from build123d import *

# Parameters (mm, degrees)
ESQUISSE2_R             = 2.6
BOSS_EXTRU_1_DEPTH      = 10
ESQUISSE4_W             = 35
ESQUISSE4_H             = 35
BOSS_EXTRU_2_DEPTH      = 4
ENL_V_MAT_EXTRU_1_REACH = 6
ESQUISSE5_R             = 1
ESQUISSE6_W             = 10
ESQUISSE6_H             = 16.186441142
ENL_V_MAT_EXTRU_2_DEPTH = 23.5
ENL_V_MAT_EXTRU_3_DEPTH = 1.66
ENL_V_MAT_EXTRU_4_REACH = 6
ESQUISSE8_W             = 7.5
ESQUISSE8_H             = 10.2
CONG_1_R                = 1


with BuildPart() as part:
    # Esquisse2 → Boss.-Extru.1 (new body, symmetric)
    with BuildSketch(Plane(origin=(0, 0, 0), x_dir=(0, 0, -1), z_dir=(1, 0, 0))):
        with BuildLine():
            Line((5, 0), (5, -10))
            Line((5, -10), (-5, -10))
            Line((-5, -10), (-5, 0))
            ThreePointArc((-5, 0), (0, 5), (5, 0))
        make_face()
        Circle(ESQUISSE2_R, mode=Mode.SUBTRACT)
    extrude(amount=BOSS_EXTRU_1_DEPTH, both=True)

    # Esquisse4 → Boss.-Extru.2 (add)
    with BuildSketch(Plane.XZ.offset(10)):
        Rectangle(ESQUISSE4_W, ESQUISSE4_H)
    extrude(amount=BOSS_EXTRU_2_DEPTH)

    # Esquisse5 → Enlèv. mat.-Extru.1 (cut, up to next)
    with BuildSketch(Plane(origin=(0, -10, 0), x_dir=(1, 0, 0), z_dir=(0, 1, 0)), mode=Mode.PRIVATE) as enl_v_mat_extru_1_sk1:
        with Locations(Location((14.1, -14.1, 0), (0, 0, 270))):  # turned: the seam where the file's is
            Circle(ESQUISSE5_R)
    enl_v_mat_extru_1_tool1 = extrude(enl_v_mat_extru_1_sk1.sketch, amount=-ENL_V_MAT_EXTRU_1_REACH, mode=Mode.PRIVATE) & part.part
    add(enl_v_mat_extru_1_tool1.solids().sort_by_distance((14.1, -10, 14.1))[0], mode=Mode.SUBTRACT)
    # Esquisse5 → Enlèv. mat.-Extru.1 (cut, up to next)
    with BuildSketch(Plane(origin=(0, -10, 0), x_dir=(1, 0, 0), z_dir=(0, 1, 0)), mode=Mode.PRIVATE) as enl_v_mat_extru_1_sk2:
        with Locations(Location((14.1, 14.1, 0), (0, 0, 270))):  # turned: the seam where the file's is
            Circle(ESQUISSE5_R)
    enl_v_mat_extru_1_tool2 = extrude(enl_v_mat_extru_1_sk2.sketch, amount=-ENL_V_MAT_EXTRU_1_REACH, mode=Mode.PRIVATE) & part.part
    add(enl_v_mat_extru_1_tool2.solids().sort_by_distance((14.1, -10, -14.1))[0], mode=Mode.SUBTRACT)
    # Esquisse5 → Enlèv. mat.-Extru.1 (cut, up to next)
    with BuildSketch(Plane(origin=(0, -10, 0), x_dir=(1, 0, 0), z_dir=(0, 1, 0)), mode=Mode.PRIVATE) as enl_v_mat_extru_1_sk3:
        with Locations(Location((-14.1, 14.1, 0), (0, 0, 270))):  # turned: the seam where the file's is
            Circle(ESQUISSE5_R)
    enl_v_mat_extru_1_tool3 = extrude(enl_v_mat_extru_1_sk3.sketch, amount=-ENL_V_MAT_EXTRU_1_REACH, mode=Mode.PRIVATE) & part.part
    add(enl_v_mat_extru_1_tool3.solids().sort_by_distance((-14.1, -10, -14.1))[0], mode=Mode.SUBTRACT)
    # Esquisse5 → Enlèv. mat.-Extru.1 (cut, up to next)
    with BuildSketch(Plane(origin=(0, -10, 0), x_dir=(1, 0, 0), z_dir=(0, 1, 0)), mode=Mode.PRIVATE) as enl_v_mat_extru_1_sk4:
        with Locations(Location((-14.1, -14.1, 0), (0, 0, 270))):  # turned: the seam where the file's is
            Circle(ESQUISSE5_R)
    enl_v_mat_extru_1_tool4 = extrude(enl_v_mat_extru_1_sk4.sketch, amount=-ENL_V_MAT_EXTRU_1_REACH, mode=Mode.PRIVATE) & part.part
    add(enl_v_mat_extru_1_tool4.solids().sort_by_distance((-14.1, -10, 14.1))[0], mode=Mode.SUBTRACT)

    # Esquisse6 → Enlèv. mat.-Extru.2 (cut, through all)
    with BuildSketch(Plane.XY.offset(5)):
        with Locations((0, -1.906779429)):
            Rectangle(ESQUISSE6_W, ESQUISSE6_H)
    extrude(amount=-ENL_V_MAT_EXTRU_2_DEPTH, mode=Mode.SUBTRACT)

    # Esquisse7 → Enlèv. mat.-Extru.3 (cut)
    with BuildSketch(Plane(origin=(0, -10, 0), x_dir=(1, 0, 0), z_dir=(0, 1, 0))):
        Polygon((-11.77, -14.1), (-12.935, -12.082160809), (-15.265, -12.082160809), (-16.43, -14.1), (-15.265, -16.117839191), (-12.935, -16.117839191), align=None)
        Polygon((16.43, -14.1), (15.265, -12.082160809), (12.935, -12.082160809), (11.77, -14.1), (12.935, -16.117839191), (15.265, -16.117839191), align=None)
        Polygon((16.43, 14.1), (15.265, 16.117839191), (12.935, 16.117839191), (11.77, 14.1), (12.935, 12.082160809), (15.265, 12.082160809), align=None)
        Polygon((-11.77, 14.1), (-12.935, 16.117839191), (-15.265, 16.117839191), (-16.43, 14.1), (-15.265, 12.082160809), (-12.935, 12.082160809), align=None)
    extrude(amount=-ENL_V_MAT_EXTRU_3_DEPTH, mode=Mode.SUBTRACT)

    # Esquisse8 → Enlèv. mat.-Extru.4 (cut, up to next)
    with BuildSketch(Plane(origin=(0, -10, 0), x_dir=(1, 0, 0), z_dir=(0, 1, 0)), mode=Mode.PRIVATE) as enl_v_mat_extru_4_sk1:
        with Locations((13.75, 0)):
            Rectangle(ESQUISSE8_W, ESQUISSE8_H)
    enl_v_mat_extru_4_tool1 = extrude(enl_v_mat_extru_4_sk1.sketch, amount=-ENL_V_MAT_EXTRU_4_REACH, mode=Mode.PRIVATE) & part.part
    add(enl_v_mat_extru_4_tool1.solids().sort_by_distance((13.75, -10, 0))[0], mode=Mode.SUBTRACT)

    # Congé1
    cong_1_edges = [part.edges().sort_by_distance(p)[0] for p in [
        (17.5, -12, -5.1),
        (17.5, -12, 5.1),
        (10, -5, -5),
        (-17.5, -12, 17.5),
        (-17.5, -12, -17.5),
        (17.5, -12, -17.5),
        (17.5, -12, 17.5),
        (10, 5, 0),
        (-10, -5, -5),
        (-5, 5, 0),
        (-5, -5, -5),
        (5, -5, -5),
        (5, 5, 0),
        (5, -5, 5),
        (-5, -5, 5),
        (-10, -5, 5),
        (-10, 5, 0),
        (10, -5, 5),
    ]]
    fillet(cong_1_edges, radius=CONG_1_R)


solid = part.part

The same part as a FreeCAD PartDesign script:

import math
import FreeCAD as App
import Part
import Sketcher

V = App.Vector
Q = App.Units.Quantity


def edges_at(feature, points):
    """Names of the edges that pass closest to the given points."""
    edges = feature.Shape.Edges
    near = lambda p: min(range(len(edges)), key=lambda i: edges[i].distToShape(Part.Vertex(*p))[0])
    return sorted({f"Edge{near(p) + 1}" for p in points})

doc = App.newDocument("Part")
params = doc.addObject("Spreadsheet::Sheet", "Params")
for row, (alias, value) in enumerate([
    ("sketch1_radius", "5 mm"),
    ("sketch1_diameter", "5.2 mm"),
    ("pad1_length", "20 mm"),
    ("sketch2_width", "35 mm"),
    ("pad2_length", "4 mm"),
    ("sketch3_diameter", "2 mm"),
    ("sketch4_diameter", "2 mm"),
    ("sketch5_diameter", "2 mm"),
    ("sketch6_diameter", "2 mm"),
    ("sketch7_width", "10 mm"),
    ("sketch8_width", "2.33 mm"),
    ("sketch8_length", "2.33 mm"),
    ("pocket6_length", "1.66 mm"),
    ("sketch9_width", "7.5 mm"),
    ("sketch9_height", "10.2 mm"),
    ("fillet_radius", "1 mm"),
], start=1):
    params.set(f"A{row}", alias)
    params.set(f"B{row}", "=" + value)
    params.setAlias(f"B{row}", alias)

body = doc.addObject("PartDesign::Body", "Body")

# Sketch on YZ plane
sketch1 = body.newObject("Sketcher::SketchObject", "Sketch")
sketch1.AttachmentSupport = (doc.getObject("YZ_Plane"), [""])
sketch1.MapMode = "FlatFace"
sketch1.addGeometry(Part.LineSegment(V(-10, -5, 0), V(0, -5, 0)), False)
sketch1.addGeometry(Part.ArcOfCircle(Part.Circle(V(0, 0, 0), V(0, 0, 1), 5), math.radians(-90), math.radians(90)), False)
sketch1.addGeometry(Part.LineSegment(V(0, 5, 0), V(-10, 5, 0)), False)
sketch1.addGeometry(Part.LineSegment(V(-10, 5, 0), V(-10, -5, 0)), False)
sketch1.addGeometry(Part.Circle(V(0, 0, 0), V(0, 0, 1), 2.6), False)
sketch1.addConstraint(Sketcher.Constraint("Tangent", 0, 2, 1, 1))
sketch1.addConstraint(Sketcher.Constraint("Tangent", 1, 2, 2, 1))
sketch1.addConstraint(Sketcher.Constraint("Coincident", 2, 2, 3, 1))
sketch1.addConstraint(Sketcher.Constraint("Coincident", 3, 2, 0, 1))
sketch1.addConstraint(Sketcher.Constraint("Horizontal", 0))
sketch1.addConstraint(Sketcher.Constraint("Horizontal", 2))
sketch1.addConstraint(Sketcher.Constraint("Vertical", 3))
sketch1.addConstraint(Sketcher.Constraint("Coincident", 1, 3, -1, 1))
sketch1.addConstraint(Sketcher.Constraint("Coincident", 4, 3, -1, 1))
sketch1.addConstraint(Sketcher.Constraint("Equal", 2, 3))
sketch1.addConstraint(Sketcher.Constraint("Radius", 1, Q("5 mm")))
sketch1.addConstraint(Sketcher.Constraint("Diameter", 4, Q("5.2 mm")))
sketch1.setExpression("Constraints[10]", "Params.sketch1_radius")
sketch1.setExpression("Constraints[11]", "Params.sketch1_diameter")
pad1 = body.newObject("PartDesign::Pad", "Pad")
pad1.Profile = sketch1
pad1.setExpression("Length", "Params.pad1_length")
pad1.Midplane = True

# Sketch on XZ plane
sketch2 = body.newObject("Sketcher::SketchObject", "Sketch001")
sketch2.AttachmentSupport = (doc.getObject("XZ_Plane"), [""])
sketch2.MapMode = "FlatFace"
sketch2.AttachmentOffset = App.Placement(V(0, 0, 10), App.Rotation())
sketch2.addGeometry(Part.LineSegment(V(-17.5, 17.5, 0), V(-17.5, -17.5, 0)), False)
sketch2.addGeometry(Part.LineSegment(V(-17.5, -17.5, 0), V(17.5, -17.5, 0)), False)
sketch2.addGeometry(Part.LineSegment(V(17.5, -17.5, 0), V(17.5, 17.5, 0)), False)
sketch2.addGeometry(Part.LineSegment(V(17.5, 17.5, 0), V(-17.5, 17.5, 0)), False)
sketch2.addConstraint(Sketcher.Constraint("Coincident", 0, 2, 1, 1))
sketch2.addConstraint(Sketcher.Constraint("Coincident", 1, 2, 2, 1))
sketch2.addConstraint(Sketcher.Constraint("Coincident", 2, 2, 3, 1))
sketch2.addConstraint(Sketcher.Constraint("Coincident", 3, 2, 0, 1))
sketch2.addConstraint(Sketcher.Constraint("Vertical", 0))
sketch2.addConstraint(Sketcher.Constraint("Horizontal", 1))
sketch2.addConstraint(Sketcher.Constraint("Vertical", 2))
sketch2.addConstraint(Sketcher.Constraint("Horizontal", 3))
sketch2.addConstraint(Sketcher.Constraint("Symmetric", 0, 2, 2, 2, -1, 1))
sketch2.addConstraint(Sketcher.Constraint("Equal", 3, 0))
sketch2.addConstraint(Sketcher.Constraint("DistanceX", 1, 1, 1, 2, Q("35 mm")))
sketch2.setExpression("Constraints[10]", "Params.sketch2_width")
pad2 = body.newObject("PartDesign::Pad", "Pad001")
pad2.Profile = sketch2
pad2.setExpression("Length", "Params.pad2_length")

# Sketch on XZ plane
sketch3 = body.newObject("Sketcher::SketchObject", "Sketch002")
sketch3.AttachmentSupport = (doc.getObject("XZ_Plane"), [""])
sketch3.MapMode = "FlatFace"
sketch3.AttachmentOffset = App.Placement(V(0, 0, 10), App.Rotation())
sketch3.addGeometry(Part.Circle(V(14.1, 14.1, 0), V(0, 0, 1), 1), False)
sketch3.addConstraint(Sketcher.Constraint("Diameter", 0, Q("2 mm")))
sketch3.addConstraint(Sketcher.Constraint("DistanceX", -1, 1, 0, 3, Q("14.1 mm")))
sketch3.addConstraint(Sketcher.Constraint("DistanceY", -1, 1, 0, 3, Q("14.1 mm")))
sketch3.setExpression("Constraints[0]", "Params.sketch3_diameter")
pocket1 = body.newObject("PartDesign::Pocket", "Pocket")
pocket1.Profile = sketch3
pocket1.Type = "UpToFirst"
pocket1.Reversed = True

# Sketch on XZ plane
sketch4 = body.newObject("Sketcher::SketchObject", "Sketch003")
sketch4.AttachmentSupport = (doc.getObject("XZ_Plane"), [""])
sketch4.MapMode = "FlatFace"
sketch4.AttachmentOffset = App.Placement(V(0, 0, 10), App.Rotation())
sketch4.addGeometry(Part.Circle(V(14.1, -14.1, 0), V(0, 0, 1), 1), False)
sketch4.addConstraint(Sketcher.Constraint("Diameter", 0, Q("2 mm")))
sketch4.addConstraint(Sketcher.Constraint("DistanceX", -1, 1, 0, 3, Q("14.1 mm")))
sketch4.addConstraint(Sketcher.Constraint("DistanceY", 0, 3, -1, 1, Q("14.1 mm")))
sketch4.setExpression("Constraints[0]", "Params.sketch4_diameter")
pocket2 = body.newObject("PartDesign::Pocket", "Pocket001")
pocket2.Profile = sketch4
pocket2.Type = "UpToFirst"
pocket2.Reversed = True

# Sketch on XZ plane
sketch5 = body.newObject("Sketcher::SketchObject", "Sketch004")
sketch5.AttachmentSupport = (doc.getObject("XZ_Plane"), [""])
sketch5.MapMode = "FlatFace"
sketch5.AttachmentOffset = App.Placement(V(0, 0, 10), App.Rotation())
sketch5.addGeometry(Part.Circle(V(-14.1, -14.1, 0), V(0, 0, 1), 1), False)
sketch5.addConstraint(Sketcher.Constraint("Diameter", 0, Q("2 mm")))
sketch5.addConstraint(Sketcher.Constraint("DistanceX", 0, 3, -1, 1, Q("14.1 mm")))
sketch5.addConstraint(Sketcher.Constraint("DistanceY", 0, 3, -1, 1, Q("14.1 mm")))
sketch5.setExpression("Constraints[0]", "Params.sketch5_diameter")
pocket3 = body.newObject("PartDesign::Pocket", "Pocket002")
pocket3.Profile = sketch5
pocket3.Type = "UpToFirst"
pocket3.Reversed = True

# Sketch on XZ plane
sketch6 = body.newObject("Sketcher::SketchObject", "Sketch005")
sketch6.AttachmentSupport = (doc.getObject("XZ_Plane"), [""])
sketch6.MapMode = "FlatFace"
sketch6.AttachmentOffset = App.Placement(V(0, 0, 10), App.Rotation())
sketch6.addGeometry(Part.Circle(V(-14.1, 14.1, 0), V(0, 0, 1), 1), False)
sketch6.addConstraint(Sketcher.Constraint("Diameter", 0, Q("2 mm")))
sketch6.addConstraint(Sketcher.Constraint("DistanceX", 0, 3, -1, 1, Q("14.1 mm")))
sketch6.addConstraint(Sketcher.Constraint("DistanceY", -1, 1, 0, 3, Q("14.1 mm")))
sketch6.setExpression("Constraints[0]", "Params.sketch6_diameter")
pocket4 = body.newObject("PartDesign::Pocket", "Pocket003")
pocket4.Profile = sketch6
pocket4.Type = "UpToFirst"
pocket4.Reversed = True

# Sketch on XY plane
sketch7 = body.newObject("Sketcher::SketchObject", "Sketch006")
sketch7.AttachmentSupport = (doc.getObject("XY_Plane"), [""])
sketch7.MapMode = "FlatFace"
sketch7.AttachmentOffset = App.Placement(V(0, 0, 5), App.Rotation())
sketch7.addGeometry(Part.LineSegment(V(-5, 6.186441, 0), V(-5, -10, 0)), False)
sketch7.addGeometry(Part.LineSegment(V(-5, -10, 0), V(5, -10, 0)), False)
sketch7.addGeometry(Part.LineSegment(V(5, -10, 0), V(5, 6.186441, 0)), False)
sketch7.addGeometry(Part.LineSegment(V(5, 6.186441, 0), V(-5, 6.186441, 0)), False)
sketch7.addConstraint(Sketcher.Constraint("Coincident", 0, 2, 1, 1))
sketch7.addConstraint(Sketcher.Constraint("Coincident", 1, 2, 2, 1))
sketch7.addConstraint(Sketcher.Constraint("Coincident", 2, 2, 3, 1))
sketch7.addConstraint(Sketcher.Constraint("Coincident", 3, 2, 0, 1))
sketch7.addConstraint(Sketcher.Constraint("Vertical", 0))
sketch7.addConstraint(Sketcher.Constraint("Horizontal", 1))
sketch7.addConstraint(Sketcher.Constraint("Vertical", 2))
sketch7.addConstraint(Sketcher.Constraint("Horizontal", 3))
sketch7.addConstraint(Sketcher.Constraint("DistanceX", 1, 1, 1, 2, Q("10 mm")))
sketch7.addConstraint(Sketcher.Constraint("DistanceX", 0, 2, -1, 1, Q("5 mm")))
sketch7.addConstraint(Sketcher.Constraint("DistanceY", 0, 2, -1, 1, Q("10 mm")))
sketch7.addConstraint(Sketcher.Constraint("DistanceY", 0, 2, 0, 1, Q("16.186441 mm")))
sketch7.setExpression("Constraints[8]", "Params.sketch7_width")
pocket5 = body.newObject("PartDesign::Pocket", "Pocket004")
pocket5.Profile = sketch7
pocket5.Type = "ThroughAll"

# Sketch on XZ plane
sketch8 = body.newObject("Sketcher::SketchObject", "Sketch007")
sketch8.AttachmentSupport = (doc.getObject("XZ_Plane"), [""])
sketch8.MapMode = "FlatFace"
sketch8.AttachmentOffset = App.Placement(V(0, 0, 10), App.Rotation())
sketch8.addGeometry(Part.LineSegment(V(-11.77, 14.1, 0), V(-12.935, 12.082161, 0)), False)
sketch8.addGeometry(Part.LineSegment(V(-12.935, 12.082161, 0), V(-15.265, 12.082161, 0)), False)
sketch8.addGeometry(Part.LineSegment(V(-15.265, 12.082161, 0), V(-16.43, 14.1, 0)), False)
sketch8.addGeometry(Part.LineSegment(V(-16.43, 14.1, 0), V(-15.265, 16.117839, 0)), False)
sketch8.addGeometry(Part.LineSegment(V(-15.265, 16.117839, 0), V(-12.935, 16.117839, 0)), False)
sketch8.addGeometry(Part.LineSegment(V(-12.935, 16.117839, 0), V(-11.77, 14.1, 0)), False)
sketch8.addGeometry(Part.LineSegment(V(16.43, 14.1, 0), V(15.265, 12.082161, 0)), False)
sketch8.addGeometry(Part.LineSegment(V(15.265, 12.082161, 0), V(12.935, 12.082161, 0)), False)
sketch8.addGeometry(Part.LineSegment(V(12.935, 12.082161, 0), V(11.77, 14.1, 0)), False)
sketch8.addGeometry(Part.LineSegment(V(11.77, 14.1, 0), V(12.935, 16.117839, 0)), False)
sketch8.addGeometry(Part.LineSegment(V(12.935, 16.117839, 0), V(15.265, 16.117839, 0)), False)
sketch8.addGeometry(Part.LineSegment(V(15.265, 16.117839, 0), V(16.43, 14.1, 0)), False)
sketch8.addGeometry(Part.LineSegment(V(16.43, -14.1, 0), V(15.265, -16.117839, 0)), False)
sketch8.addGeometry(Part.LineSegment(V(15.265, -16.117839, 0), V(12.935, -16.117839, 0)), False)
sketch8.addGeometry(Part.LineSegment(V(12.935, -16.117839, 0), V(11.77, -14.1, 0)), False)
sketch8.addGeometry(Part.LineSegment(V(11.77, -14.1, 0), V(12.935, -12.082161, 0)), False)
sketch8.addGeometry(Part.LineSegment(V(12.935, -12.082161, 0), V(15.265, -12.082161, 0)), False)
sketch8.addGeometry(Part.LineSegment(V(15.265, -12.082161, 0), V(16.43, -14.1, 0)), False)
sketch8.addGeometry(Part.LineSegment(V(-11.77, -14.1, 0), V(-12.935, -16.117839, 0)), False)
sketch8.addGeometry(Part.LineSegment(V(-12.935, -16.117839, 0), V(-15.265, -16.117839, 0)), False)
sketch8.addGeometry(Part.LineSegment(V(-15.265, -16.117839, 0), V(-16.43, -14.1, 0)), False)
sketch8.addGeometry(Part.LineSegment(V(-16.43, -14.1, 0), V(-15.265, -12.082161, 0)), False)
sketch8.addGeometry(Part.LineSegment(V(-15.265, -12.082161, 0), V(-12.935, -12.082161, 0)), False)
sketch8.addGeometry(Part.LineSegment(V(-12.935, -12.082161, 0), V(-11.77, -14.1, 0)), False)
sketch8.addConstraint(Sketcher.Constraint("Coincident", 0, 2, 1, 1))
sketch8.addConstraint(Sketcher.Constraint("Coincident", 1, 2, 2, 1))
sketch8.addConstraint(Sketcher.Constraint("Coincident", 2, 2, 3, 1))
sketch8.addConstraint(Sketcher.Constraint("Coincident", 3, 2, 4, 1))
sketch8.addConstraint(Sketcher.Constraint("Coincident", 4, 2, 5, 1))
sketch8.addConstraint(Sketcher.Constraint("Coincident", 5, 2, 0, 1))
sketch8.addConstraint(Sketcher.Constraint("Coincident", 6, 2, 7, 1))
sketch8.addConstraint(Sketcher.Constraint("Coincident", 7, 2, 8, 1))
sketch8.addConstraint(Sketcher.Constraint("Coincident", 8, 2, 9, 1))
sketch8.addConstraint(Sketcher.Constraint("Coincident", 9, 2, 10, 1))
sketch8.addConstraint(Sketcher.Constraint("Coincident", 10, 2, 11, 1))
sketch8.addConstraint(Sketcher.Constraint("Coincident", 11, 2, 6, 1))
sketch8.addConstraint(Sketcher.Constraint("Coincident", 12, 2, 13, 1))
sketch8.addConstraint(Sketcher.Constraint("Coincident", 13, 2, 14, 1))
sketch8.addConstraint(Sketcher.Constraint("Coincident", 14, 2, 15, 1))
sketch8.addConstraint(Sketcher.Constraint("Coincident", 15, 2, 16, 1))
sketch8.addConstraint(Sketcher.Constraint("Coincident", 16, 2, 17, 1))
sketch8.addConstraint(Sketcher.Constraint("Coincident", 17, 2, 12, 1))
sketch8.addConstraint(Sketcher.Constraint("Coincident", 18, 2, 19, 1))
sketch8.addConstraint(Sketcher.Constraint("Coincident", 19, 2, 20, 1))
sketch8.addConstraint(Sketcher.Constraint("Coincident", 20, 2, 21, 1))
sketch8.addConstraint(Sketcher.Constraint("Coincident", 21, 2, 22, 1))
sketch8.addConstraint(Sketcher.Constraint("Coincident", 22, 2, 23, 1))
sketch8.addConstraint(Sketcher.Constraint("Coincident", 23, 2, 18, 1))
sketch8.addConstraint(Sketcher.Constraint("Horizontal", 1))
sketch8.addConstraint(Sketcher.Constraint("Horizontal", 4))
sketch8.addConstraint(Sketcher.Constraint("Horizontal", 7))
sketch8.addConstraint(Sketcher.Constraint("Horizontal", 10))
sketch8.addConstraint(Sketcher.Constraint("Horizontal", 13))
sketch8.addConstraint(Sketcher.Constraint("Horizontal", 16))
sketch8.addConstraint(Sketcher.Constraint("Horizontal", 19))
sketch8.addConstraint(Sketcher.Constraint("Horizontal", 22))
sketch8.addConstraint(Sketcher.Constraint("Symmetric", 3, 2, 12, 2, -1, 1))
sketch8.addConstraint(Sketcher.Constraint("Symmetric", 5, 2, 14, 2, -1, 1))
sketch8.addConstraint(Sketcher.Constraint("Symmetric", 0, 2, 15, 2, -1, 1))
sketch8.addConstraint(Sketcher.Constraint("Symmetric", 2, 2, 17, 2, -1, 1))
sketch8.addConstraint(Sketcher.Constraint("Symmetric", 9, 2, 18, 2, -1, 1))
sketch8.addConstraint(Sketcher.Constraint("Symmetric", 11, 2, 20, 2, -1, 1))
sketch8.addConstraint(Sketcher.Constraint("Symmetric", 6, 2, 21, 2, -1, 1))
sketch8.addConstraint(Sketcher.Constraint("Symmetric", 8, 2, 23, 2, -1, 1))
sketch8.addConstraint(Sketcher.Constraint("Symmetric", 1, 2, 6, 2, -2))
sketch8.addConstraint(Sketcher.Constraint("Symmetric", 5, 2, 8, 2, -2))
sketch8.addConstraint(Sketcher.Constraint("Symmetric", 4, 2, 9, 2, -2))
sketch8.addConstraint(Sketcher.Constraint("Symmetric", 2, 2, 11, 2, -2))
sketch8.addConstraint(Sketcher.Constraint("Parallel", 0, 3))
sketch8.addConstraint(Sketcher.Constraint("Parallel", 2, 5))
sketch8.addConstraint(Sketcher.Constraint("Parallel", 3, 6))
sketch8.addConstraint(Sketcher.Constraint("Parallel", 5, 8))
sketch8.addConstraint(Sketcher.Constraint("Parallel", 8, 11))
sketch8.addConstraint(Sketcher.Constraint("Parallel", 11, 14))
sketch8.addConstraint(Sketcher.Constraint("Parallel", 14, 17))
sketch8.addConstraint(Sketcher.Constraint("Parallel", 17, 20))
sketch8.addConstraint(Sketcher.Constraint("Parallel", 20, 23))
sketch8.addConstraint(Sketcher.Constraint("Horizontal", 2, 2, 5, 2))
sketch8.addConstraint(Sketcher.Constraint("Vertical", 1, 2, 3, 2))
sketch8.addConstraint(Sketcher.Constraint("Angle", 0, Q("-120 deg")))
sketch8.addConstraint(Sketcher.Constraint("DistanceX", 1, 2, 1, 1, Q("2.33 mm")))
sketch8.addConstraint(Sketcher.Constraint("DistanceY", -1, 1, 2, 2, Q("14.1 mm")))
sketch8.addConstraint(Sketcher.Constraint("DistanceX", 0, 2, 6, 2, Q("28.2 mm")))
sketch8.addConstraint(Sketcher.Constraint("Distance", 0, Q("2.33 mm")))
sketch8.setExpression("Constraints[56]", "Params.sketch8_width")
sketch8.setExpression("Constraints[59]", "Params.sketch8_length")
pocket6 = body.newObject("PartDesign::Pocket", "Pocket005")
pocket6.Profile = sketch8
pocket6.setExpression("Length", "Params.pocket6_length")
pocket6.Reversed = True

# Sketch on XZ plane
sketch9 = body.newObject("Sketcher::SketchObject", "Sketch008")
sketch9.AttachmentSupport = (doc.getObject("XZ_Plane"), [""])
sketch9.MapMode = "FlatFace"
sketch9.AttachmentOffset = App.Placement(V(0, 0, 10), App.Rotation())
sketch9.addGeometry(Part.LineSegment(V(10, -5.1, 0), V(10, 5.1, 0)), False)
sketch9.addGeometry(Part.LineSegment(V(10, 5.1, 0), V(17.5, 5.1, 0)), False)
sketch9.addGeometry(Part.LineSegment(V(17.5, 5.1, 0), V(17.5, -5.1, 0)), False)
sketch9.addGeometry(Part.LineSegment(V(17.5, -5.1, 0), V(10, -5.1, 0)), False)
sketch9.addConstraint(Sketcher.Constraint("Coincident", 0, 2, 1, 1))
sketch9.addConstraint(Sketcher.Constraint("Coincident", 1, 2, 2, 1))
sketch9.addConstraint(Sketcher.Constraint("Coincident", 2, 2, 3, 1))
sketch9.addConstraint(Sketcher.Constraint("Coincident", 3, 2, 0, 1))
sketch9.addConstraint(Sketcher.Constraint("Vertical", 0))
sketch9.addConstraint(Sketcher.Constraint("Horizontal", 1))
sketch9.addConstraint(Sketcher.Constraint("Vertical", 2))
sketch9.addConstraint(Sketcher.Constraint("Horizontal", 3))
sketch9.addConstraint(Sketcher.Constraint("DistanceX", 1, 1, 1, 2, Q("7.5 mm")))
sketch9.addConstraint(Sketcher.Constraint("DistanceY", 0, 1, 0, 2, Q("10.2 mm")))
sketch9.addConstraint(Sketcher.Constraint("DistanceX", -1, 1, 0, 2, Q("10 mm")))
sketch9.addConstraint(Sketcher.Constraint("DistanceY", -1, 1, 0, 2, Q("5.1 mm")))
sketch9.setExpression("Constraints[8]", "Params.sketch9_width")
sketch9.setExpression("Constraints[9]", "Params.sketch9_height")
pocket7 = body.newObject("PartDesign::Pocket", "Pocket006")
pocket7.Profile = sketch9
pocket7.Type = "UpToFirst"
pocket7.Reversed = True
doc.recompute()

fillet = body.newObject("PartDesign::Fillet", "Fillet")
fillet.Base = (pocket7, edges_at(pocket7, [
    (17.5, -12, -5.1),
    (17.5, -12, 5.1),
    (10, -5, -5),
    (-17.5, -12, 17.5),
    (-17.5, -12, -17.5),
    (17.5, -12, -17.5),
    (17.5, -12, 17.5),
    (10, 5, 0),
    (-10, -5, -5),
    (-5, 5, 0),
    (-5, -5, -5),
    (5, -5, -5),
    (5, 5, 0),
    (5, -5, 5),
    (-5, -5, 5),
    (-10, -5, 5),
    (-10, 5, 0),
    (10, -5, 5),
]))
fillet.setExpression("Radius", "Params.fillet_radius")

doc.recompute()
